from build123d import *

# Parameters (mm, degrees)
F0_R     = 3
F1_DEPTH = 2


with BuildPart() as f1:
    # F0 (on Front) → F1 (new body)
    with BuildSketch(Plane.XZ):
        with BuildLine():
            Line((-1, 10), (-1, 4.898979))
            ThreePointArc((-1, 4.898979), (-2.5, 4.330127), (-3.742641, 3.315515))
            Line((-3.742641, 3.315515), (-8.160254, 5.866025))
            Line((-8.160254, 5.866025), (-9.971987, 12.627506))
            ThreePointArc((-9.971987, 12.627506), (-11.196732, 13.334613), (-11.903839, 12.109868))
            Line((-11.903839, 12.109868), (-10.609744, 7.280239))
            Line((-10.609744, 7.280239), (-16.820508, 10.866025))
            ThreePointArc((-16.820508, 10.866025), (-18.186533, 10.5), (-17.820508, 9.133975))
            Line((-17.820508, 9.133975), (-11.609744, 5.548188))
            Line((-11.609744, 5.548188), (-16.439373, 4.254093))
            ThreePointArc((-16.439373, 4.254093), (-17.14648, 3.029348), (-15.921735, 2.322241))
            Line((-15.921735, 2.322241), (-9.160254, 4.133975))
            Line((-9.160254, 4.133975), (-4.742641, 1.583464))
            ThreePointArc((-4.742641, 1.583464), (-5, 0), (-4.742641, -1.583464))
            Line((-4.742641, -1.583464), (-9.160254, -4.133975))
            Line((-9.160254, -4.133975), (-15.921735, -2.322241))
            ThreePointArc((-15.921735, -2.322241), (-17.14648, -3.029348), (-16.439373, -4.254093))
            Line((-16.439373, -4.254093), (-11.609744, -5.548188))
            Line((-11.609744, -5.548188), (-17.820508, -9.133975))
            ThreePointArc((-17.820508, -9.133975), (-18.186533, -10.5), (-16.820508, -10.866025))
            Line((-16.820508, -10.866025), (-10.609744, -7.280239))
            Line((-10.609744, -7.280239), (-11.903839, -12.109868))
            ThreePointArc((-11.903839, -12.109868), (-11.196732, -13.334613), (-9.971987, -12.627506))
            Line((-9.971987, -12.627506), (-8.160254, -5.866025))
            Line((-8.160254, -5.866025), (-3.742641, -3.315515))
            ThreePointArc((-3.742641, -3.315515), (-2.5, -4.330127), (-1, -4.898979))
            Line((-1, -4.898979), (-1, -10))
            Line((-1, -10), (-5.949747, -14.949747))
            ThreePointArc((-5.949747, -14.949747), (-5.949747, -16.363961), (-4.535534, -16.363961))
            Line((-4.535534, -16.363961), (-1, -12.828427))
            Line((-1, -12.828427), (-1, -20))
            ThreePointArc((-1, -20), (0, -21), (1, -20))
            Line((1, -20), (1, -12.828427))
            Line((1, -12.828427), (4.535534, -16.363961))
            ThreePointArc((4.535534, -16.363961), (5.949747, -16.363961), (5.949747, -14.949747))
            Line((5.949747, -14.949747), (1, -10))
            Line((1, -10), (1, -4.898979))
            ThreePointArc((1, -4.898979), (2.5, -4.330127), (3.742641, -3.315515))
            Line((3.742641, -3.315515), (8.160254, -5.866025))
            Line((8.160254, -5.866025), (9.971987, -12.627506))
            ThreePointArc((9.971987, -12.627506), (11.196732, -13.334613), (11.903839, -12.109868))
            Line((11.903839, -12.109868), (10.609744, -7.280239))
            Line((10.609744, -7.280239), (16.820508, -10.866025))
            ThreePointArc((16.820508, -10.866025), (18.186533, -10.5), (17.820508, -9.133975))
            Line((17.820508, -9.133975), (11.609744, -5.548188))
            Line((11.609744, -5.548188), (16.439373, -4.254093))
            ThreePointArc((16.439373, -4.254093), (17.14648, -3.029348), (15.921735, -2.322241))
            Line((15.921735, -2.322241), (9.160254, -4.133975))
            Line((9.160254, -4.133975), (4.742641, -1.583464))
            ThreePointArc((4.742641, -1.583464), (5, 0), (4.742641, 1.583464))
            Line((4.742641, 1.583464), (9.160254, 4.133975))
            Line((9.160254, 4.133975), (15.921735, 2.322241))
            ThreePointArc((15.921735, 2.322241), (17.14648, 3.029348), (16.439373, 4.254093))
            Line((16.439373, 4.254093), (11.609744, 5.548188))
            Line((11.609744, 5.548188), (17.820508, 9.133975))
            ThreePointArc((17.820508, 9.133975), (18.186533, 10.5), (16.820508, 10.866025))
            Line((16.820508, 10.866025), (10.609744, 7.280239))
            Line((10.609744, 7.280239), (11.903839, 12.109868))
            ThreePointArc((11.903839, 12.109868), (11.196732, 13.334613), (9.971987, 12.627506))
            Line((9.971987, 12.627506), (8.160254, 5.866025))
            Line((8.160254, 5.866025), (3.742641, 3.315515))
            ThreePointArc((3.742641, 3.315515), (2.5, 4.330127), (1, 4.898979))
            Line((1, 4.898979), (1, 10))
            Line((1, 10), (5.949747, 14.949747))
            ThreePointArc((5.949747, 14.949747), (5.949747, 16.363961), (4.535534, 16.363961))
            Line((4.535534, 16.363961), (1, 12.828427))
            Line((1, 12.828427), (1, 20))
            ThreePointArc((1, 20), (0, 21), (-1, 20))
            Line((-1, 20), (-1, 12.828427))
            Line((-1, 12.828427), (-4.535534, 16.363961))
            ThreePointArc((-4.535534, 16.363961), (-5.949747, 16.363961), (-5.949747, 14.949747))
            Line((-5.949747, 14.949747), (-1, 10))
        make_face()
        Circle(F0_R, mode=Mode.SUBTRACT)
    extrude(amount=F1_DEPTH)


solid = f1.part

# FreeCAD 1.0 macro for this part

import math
import FreeCAD as App
import Part
import Sketcher
Q = App.Units.Quantity

doc = App.newDocument("Part")
body = doc.addObject("PartDesign::Body", "Body")

sketch1 = body.newObject("Sketcher::SketchObject", "Sketch")
sketch1.AttachmentSupport = (doc.getObject("XZ_Plane"), [""])
sketch1.MapMode = "FlatFace"
sketch1.addGeometry([
    Part.LineSegment(App.Vector(-1, 10, 0), App.Vector(-1, 4.898979, 0)),
    Part.ArcOfCircle(Part.Circle(App.Vector(-0.000002, 0.000002, 0), App.Vector(0, 0, 1), 4.999997), math.radians(101.536939), math.radians(138.463045)),
    Part.LineSegment(App.Vector(-3.742641, 3.315515, 0), App.Vector(-8.160254, 5.866025, 0)),
    Part.LineSegment(App.Vector(-8.160254, 5.866025, 0), App.Vector(-9.971987, 12.627506, 0)),
    Part.ArcOfCircle(Part.Circle(App.Vector(-10.937913, 12.368687, 0), App.Vector(0, 0, 1), 1), math.radians(14.999995), math.radians(194.999995)),
    Part.LineSegment(App.Vector(-11.903839, 12.109868, 0), App.Vector(-10.609744, 7.280239, 0)),
    Part.LineSegment(App.Vector(-10.609744, 7.280239, 0), App.Vector(-16.820508, 10.866025, 0)),
    Part.ArcOfCircle(Part.Circle(App.Vector(-17.320508, 10, 0), App.Vector(0, 0, 1), 1), math.radians(59.999988), math.radians(239.999988)),
    Part.LineSegment(App.Vector(-17.820508, 9.133975, 0), App.Vector(-11.609744, 5.548188, 0)),
    Part.LineSegment(App.Vector(-11.609744, 5.548188, 0), App.Vector(-16.439373, 4.254093, 0)),
    Part.ArcOfCircle(Part.Circle(App.Vector(-16.180554, 3.288167, 0), App.Vector(0, 0, 1), 1), math.radians(104.999995), math.radians(284.999995)),
    Part.LineSegment(App.Vector(-15.921735, 2.322241, 0), App.Vector(-9.160254, 4.133975, 0)),
    Part.LineSegment(App.Vector(-9.160254, 4.133975, 0), App.Vector(-4.742641, 1.583464, 0)),
    Part.ArcOfCircle(Part.Circle(App.Vector(0.000004, 0, 0), App.Vector(0, 0, 1), 5.000004), math.radians(161.536977), math.radians(198.463023)),
    Part.LineSegment(App.Vector(-4.742641, -1.583464, 0), App.Vector(-9.160254, -4.133975, 0)),
    Part.LineSegment(App.Vector(-9.160254, -4.133975, 0), App.Vector(-15.921735, -2.322241, 0)),
    Part.ArcOfCircle(Part.Circle(App.Vector(-16.180554, -3.288167, 0), App.Vector(0, 0, 1), 1), math.radians(75.000005), math.radians(255.000005)),
    Part.LineSegment(App.Vector(-16.439373, -4.254093, 0), App.Vector(-11.609744, -5.548188, 0)),
    Part.LineSegment(App.Vector(-11.609744, -5.548188, 0), App.Vector(-17.820508, -9.133975, 0)),
    Part.ArcOfCircle(Part.Circle(App.Vector(-17.320508, -10, 0), App.Vector(0, 0, 1), 1), math.radians(120.000012), math.radians(300.000012)),
    Part.LineSegment(App.Vector(-16.820508, -10.866025, 0), App.Vector(-10.609744, -7.280239, 0)),
    Part.LineSegment(App.Vector(-10.609744, -7.280239, 0), App.Vector(-11.903839, -12.109868, 0)),
    Part.ArcOfCircle(Part.Circle(App.Vector(-10.937913, -12.368687, 0), App.Vector(0, 0, 1), 1), math.radians(165.000005), math.radians(345.000005)),
    Part.LineSegment(App.Vector(-9.971987, -12.627506, 0), App.Vector(-8.160254, -5.866025, 0)),
    Part.LineSegment(App.Vector(-8.160254, -5.866025, 0), App.Vector(-3.742641, -3.315515, 0)),
    Part.ArcOfCircle(Part.Circle(App.Vector(-0.000002, -0.000002, 0), App.Vector(0, 0, 1), 4.999997), math.radians(-138.463045), math.radians(-101.536939)),
    Part.LineSegment(App.Vector(-1, -4.898979, 0), App.Vector(-1, -10, 0)),
    Part.LineSegment(App.Vector(-1, -10, 0), App.Vector(-5.949747, -14.949747, 0)),
    Part.ArcOfCircle(Part.Circle(App.Vector(-5.242641, -15.656854, 0), App.Vector(0, 0, 1), 1), math.radians(134.99998), math.radians(314.99998)),
    Part.LineSegment(App.Vector(-4.535534, -16.363961, 0), App.Vector(-1, -12.828427, 0)),
    Part.LineSegment(App.Vector(-1, -12.828427, 0), App.Vector(-1, -20, 0)),
    Part.ArcOfCircle(Part.Circle(App.Vector(0, -20, 0), App.Vector(0, 0, 1), 1), math.radians(180), math.radians(360)),
    Part.LineSegment(App.Vector(1, -20, 0), App.Vector(1, -12.828427, 0)),
    Part.LineSegment(App.Vector(1, -12.828427, 0), App.Vector(4.535534, -16.363961, 0)),
    Part.ArcOfCircle(Part.Circle(App.Vector(5.242641, -15.656854, 0), App.Vector(0, 0, 1), 1), math.radians(-134.99998), math.radians(45.00002)),
    Part.LineSegment(App.Vector(5.949747, -14.949747, 0), App.Vector(1, -10, 0)),
    Part.LineSegment(App.Vector(1, -10, 0), App.Vector(1, -4.898979, 0)),
    Part.ArcOfCircle(Part.Circle(App.Vector(0.000002, -0.000002, 0), App.Vector(0, 0, 1), 4.999997), math.radians(-78.463061), math.radians(-41.536955)),
    Part.LineSegment(App.Vector(3.742641, -3.315515, 0), App.Vector(8.160254, -5.866025, 0)),
    Part.LineSegment(App.Vector(8.160254, -5.866025, 0), App.Vector(9.971987, -12.627506, 0)),
    Part.ArcOfCircle(Part.Circle(App.Vector(10.937913, -12.368687, 0), App.Vector(0, 0, 1), 1), math.radians(-165.000005), math.radians(14.999995)),
    Part.LineSegment(App.Vector(11.903839, -12.109868, 0), App.Vector(10.609744, -7.280239, 0)),
    Part.LineSegment(App.Vector(10.609744, -7.280239, 0), App.Vector(16.820508, -10.866025, 0)),
    Part.ArcOfCircle(Part.Circle(App.Vector(17.320508, -10, 0), App.Vector(0, 0, 1), 1), math.radians(-120.000012), math.radians(59.999988)),
    Part.LineSegment(App.Vector(17.820508, -9.133975, 0), App.Vector(11.609744, -5.548188, 0)),
    Part.LineSegment(App.Vector(11.609744, -5.548188, 0), App.Vector(16.439373, -4.254093, 0)),
    Part.ArcOfCircle(Part.Circle(App.Vector(16.180554, -3.288167, 0), App.Vector(0, 0, 1), 1), math.radians(-75.000005), math.radians(104.999995)),
    Part.LineSegment(App.Vector(15.921735, -2.322241, 0), App.Vector(9.160254, -4.133975, 0)),
    Part.LineSegment(App.Vector(9.160254, -4.133975, 0), App.Vector(4.742641, -1.583464, 0)),
    Part.ArcOfCircle(Part.Circle(App.Vector(-0.000004, 0, 0), App.Vector(0, 0, 1), 5.000004), math.radians(-18.463023), math.radians(18.463023)),
    Part.LineSegment(App.Vector(4.742641, 1.583464, 0), App.Vector(9.160254, 4.133975, 0)),
    Part.LineSegment(App.Vector(9.160254, 4.133975, 0), App.Vector(15.921735, 2.322241, 0)),
    Part.ArcOfCircle(Part.Circle(App.Vector(16.180554, 3.288167, 0), App.Vector(0, 0, 1), 1), math.radians(-104.999995), math.radians(75.000005)),
    Part.LineSegment(App.Vector(16.439373, 4.254093, 0), App.Vector(11.609744, 5.548188, 0)),
    Part.LineSegment(App.Vector(11.609744, 5.548188, 0), App.Vector(17.820508, 9.133975, 0)),
    Part.ArcOfCircle(Part.Circle(App.Vector(17.320508, 10, 0), App.Vector(0, 0, 1), 1), math.radians(-59.999988), math.radians(120.000012)),
    Part.LineSegment(App.Vector(16.820508, 10.866025, 0), App.Vector(10.609744, 7.280239, 0)),
    Part.LineSegment(App.Vector(10.609744, 7.280239, 0), App.Vector(11.903839, 12.109868, 0)),
    Part.ArcOfCircle(Part.Circle(App.Vector(10.937913, 12.368687, 0), App.Vector(0, 0, 1), 1), math.radians(-14.999995), math.radians(165.000005)),
    Part.LineSegment(App.Vector(9.971987, 12.627506, 0), App.Vector(8.160254, 5.866025, 0)),
    Part.LineSegment(App.Vector(8.160254, 5.866025, 0), App.Vector(3.742641, 3.315515, 0)),
    Part.ArcOfCircle(Part.Circle(App.Vector(0.000002, 0.000002, 0), App.Vector(0, 0, 1), 4.999997), math.radians(41.536955), math.radians(78.463061)),
    Part.LineSegment(App.Vector(1, 4.898979, 0), App.Vector(1, 10, 0)),
    Part.LineSegment(App.Vector(1, 10, 0), App.Vector(5.949747, 14.949747, 0)),
    Part.ArcOfCircle(Part.Circle(App.Vector(5.242641, 15.656854, 0), App.Vector(0, 0, 1), 1), math.radians(-45.00002), math.radians(134.99998)),
    Part.LineSegment(App.Vector(4.535534, 16.363961, 0), App.Vector(1, 12.828427, 0)),
    Part.LineSegment(App.Vector(1, 12.828427, 0), App.Vector(1, 20, 0)),
    Part.ArcOfCircle(Part.Circle(App.Vector(0, 20, 0), App.Vector(0, 0, 1), 1), math.radians(0), math.radians(180)),
    Part.LineSegment(App.Vector(-1, 20, 0), App.Vector(-1, 12.828427, 0)),
    Part.LineSegment(App.Vector(-1, 12.828427, 0), App.Vector(-4.535534, 16.363961, 0)),
    Part.ArcOfCircle(Part.Circle(App.Vector(-5.242641, 15.656854, 0), App.Vector(0, 0, 1), 1), math.radians(45.00002), math.radians(225.00002)),
    Part.LineSegment(App.Vector(-5.949747, 14.949747, 0), App.Vector(-1, 10, 0)),
    Part.Circle(App.Vector(0, 0, 0), App.Vector(0, 0, 1), 3),
], False)
sketch1.addConstraint([
    Sketcher.Constraint("Coincident", 0, 2, 1, 1),
    Sketcher.Constraint("Coincident", 1, 2, 2, 1),
    Sketcher.Constraint("Coincident", 2, 2, 3, 1),
    Sketcher.Constraint("Coincident", 3, 2, 4, 1),
    Sketcher.Constraint("Coincident", 4, 2, 5, 1),
    Sketcher.Constraint("Coincident", 5, 2, 6, 1),
    Sketcher.Constraint("Coincident", 6, 2, 7, 1),
    Sketcher.Constraint("Coincident", 7, 2, 8, 1),
    Sketcher.Constraint("Coincident", 8, 2, 9, 1),
    Sketcher.Constraint("Coincident", 9, 2, 10, 1),
    Sketcher.Constraint("Coincident", 10, 2, 11, 1),
    Sketcher.Constraint("Coincident", 11, 2, 12, 1),
    Sketcher.Constraint("Coincident", 12, 2, 13, 1),
    Sketcher.Constraint("Coincident", 13, 2, 14, 1),
    Sketcher.Constraint("Coincident", 14, 2, 15, 1),
    Sketcher.Constraint("Coincident", 15, 2, 16, 1),
    Sketcher.Constraint("Coincident", 16, 2, 17, 1),
    Sketcher.Constraint("Coincident", 17, 2, 18, 1),
    Sketcher.Constraint("Coincident", 18, 2, 19, 1),
    Sketcher.Constraint("Coincident", 19, 2, 20, 1),
    Sketcher.Constraint("Coincident", 20, 2, 21, 1),
    Sketcher.Constraint("Coincident", 21, 2, 22, 1),
    Sketcher.Constraint("Coincident", 22, 2, 23, 1),
    Sketcher.Constraint("Coincident", 23, 2, 24, 1),
    Sketcher.Constraint("Coincident", 24, 2, 25, 1),
    Sketcher.Constraint("Coincident", 25, 2, 26, 1),
    Sketcher.Constraint("Coincident", 26, 2, 27, 1),
    Sketcher.Constraint("Coincident", 27, 2, 28, 1),
    Sketcher.Constraint("Coincident", 28, 2, 29, 1),
    Sketcher.Constraint("Coincident", 29, 2, 30, 1),
    Sketcher.Constraint("Coincident", 30, 2, 31, 1),
    Sketcher.Constraint("Coincident", 31, 2, 32, 1),
    Sketcher.Constraint("Coincident", 32, 2, 33, 1),
    Sketcher.Constraint("Coincident", 33, 2, 34, 1),
    Sketcher.Constraint("Coincident", 34, 2, 35, 1),
    Sketcher.Constraint("Coincident", 35, 2, 36, 1),
    Sketcher.Constraint("Coincident", 36, 2, 37, 1),
    Sketcher.Constraint("Coincident", 37, 2, 38, 1),
    Sketcher.Constraint("Coincident", 38, 2, 39, 1),
    Sketcher.Constraint("Coincident", 39, 2, 40, 1),
    Sketcher.Constraint("Coincident", 40, 2, 41, 1),
    Sketcher.Constraint("Coincident", 41, 2, 42, 1),
    Sketcher.Constraint("Coincident", 42, 2, 43, 1),
    Sketcher.Constraint("Coincident", 43, 2, 44, 1),
    Sketcher.Constraint("Coincident", 44, 2, 45, 1),
    Sketcher.Constraint("Coincident", 45, 2, 46, 1),
    Sketcher.Constraint("Coincident", 46, 2, 47, 1),
    Sketcher.Constraint("Coincident", 47, 2, 48, 1),
    Sketcher.Constraint("Coincident", 48, 2, 49, 1),
    Sketcher.Constraint("Coincident", 49, 2, 50, 1),
    Sketcher.Constraint("Coincident", 50, 2, 51, 1),
    Sketcher.Constraint("Coincident", 51, 2, 52, 1),
    Sketcher.Constraint("Coincident", 52, 2, 53, 1),
    Sketcher.Constraint("Coincident", 53, 2, 54, 1),
    Sketcher.Constraint("Coincident", 54, 2, 55, 1),
    Sketcher.Constraint("Coincident", 55, 2, 56, 1),
    Sketcher.Constraint("Coincident", 56, 2, 57, 1),
    Sketcher.Constraint("Coincident", 57, 2, 58, 1),
    Sketcher.Constraint("Coincident", 58, 2, 59, 1),
    Sketcher.Constraint("Coincident", 59, 2, 60, 1),
    Sketcher.Constraint("Coincident", 60, 2, 61, 1),
    Sketcher.Constraint("Coincident", 61, 2, 62, 1),
    Sketcher.Constraint("Coincident", 62, 2, 63, 1),
    Sketcher.Constraint("Coincident", 63, 2, 64, 1),
    Sketcher.Constraint("Coincident", 64, 2, 65, 1),
    Sketcher.Constraint("Coincident", 65, 2, 66, 1),
    Sketcher.Constraint("Coincident", 66, 2, 67, 1),
    Sketcher.Constraint("Coincident", 67, 2, 68, 1),
    Sketcher.Constraint("Coincident", 68, 2, 69, 1),
    Sketcher.Constraint("Coincident", 69, 2, 70, 1),
    Sketcher.Constraint("Coincident", 70, 2, 71, 1),
    Sketcher.Constraint("Coincident", 71, 2, 0, 1),
    Sketcher.Constraint("Vertical", 0),
    Sketcher.Constraint("Vertical", 26),
    Sketcher.Constraint("Vertical", 30),
    Sketcher.Constraint("Vertical", 32),
    Sketcher.Constraint("Vertical", 36),
    Sketcher.Constraint("Vertical", 62),
    Sketcher.Constraint("Vertical", 66),
    Sketcher.Constraint("Vertical", 68),
    Sketcher.Constraint("Coincident", 1, 3, -1, 1),
    Sketcher.Constraint("Coincident", 13, 3, -1, 1),
    Sketcher.Constraint("Coincident", 25, 3, -1, 1),
    Sketcher.Constraint("Coincident", 37, 3, -1, 1),
    Sketcher.Constraint("Coincident", 49, 3, -1, 1),
    Sketcher.Constraint("Coincident", 61, 3, -1, 1),
    Sketcher.Constraint("Coincident", 72, 3, -1, 1),
    Sketcher.Constraint("PointOnObject", 31, 3, -2),
    Sketcher.Constraint("PointOnObject", 67, 3, -2),
    Sketcher.Constraint("Diameter", 72, Q("6 mm")),
    Sketcher.Constraint("Radius", 4, Q("1 mm")),
    Sketcher.Constraint("Radius", 7, Q("1 mm")),
    Sketcher.Constraint("Radius", 10, Q("1 mm")),
    Sketcher.Constraint("Radius", 16, Q("1 mm")),
    Sketcher.Constraint("Radius", 19, Q("1 mm")),
    Sketcher.Constraint("Radius", 22, Q("1 mm")),
    Sketcher.Constraint("Radius", 28, Q("1 mm")),
    Sketcher.Constraint("Radius", 31, Q("1 mm")),
    Sketcher.Constraint("Radius", 34, Q("1 mm")),
    Sketcher.Constraint("Radius", 40, Q("1 mm")),
    Sketcher.Constraint("Radius", 43, Q("1 mm")),
    Sketcher.Constraint("Radius", 46, Q("1 mm")),
    Sketcher.Constraint("Radius", 52, Q("1 mm")),
    Sketcher.Constraint("Radius", 55, Q("1 mm")),
    Sketcher.Constraint("Radius", 58, Q("1 mm")),
    Sketcher.Constraint("Radius", 64, Q("1 mm")),
    Sketcher.Constraint("Radius", 67, Q("1 mm")),
    Sketcher.Constraint("Radius", 70, Q("1 mm")),
    Sketcher.Constraint("Distance", 3, Q("7 mm")),
    Sketcher.Constraint("Distance", 5, Q("5 mm")),
    Sketcher.Constraint("Distance", 9, Q("5 mm")),
    Sketcher.Constraint("Distance", 11, Q("7 mm")),
    Sketcher.Constraint("Distance", 15, Q("7 mm")),
    Sketcher.Constraint("Distance", 17, Q("5 mm")),
    Sketcher.Constraint("Distance", 21, Q("5 mm")),
    Sketcher.Constraint("Distance", 23, Q("7 mm")),
    Sketcher.Constraint("Distance", 27, Q("6.999999 mm")),
    Sketcher.Constraint("Distance", 29, Q("5 mm")),
    Sketcher.Constraint("Distance", 33, Q("5 mm")),
    Sketcher.Constraint("Distance", 35, Q("6.999999 mm")),
    Sketcher.Constraint("Distance", 39, Q("7 mm")),
    Sketcher.Constraint("Distance", 41, Q("5 mm")),
    Sketcher.Constraint("Distance", 45, Q("5 mm")),
    Sketcher.Constraint("Distance", 47, Q("7 mm")),
    Sketcher.Constraint("Distance", 51, Q("7 mm")),
    Sketcher.Constraint("Distance", 53, Q("5 mm")),
    Sketcher.Constraint("Distance", 57, Q("5 mm")),
    Sketcher.Constraint("Distance", 59, Q("7 mm")),
    Sketcher.Constraint("Distance", 63, Q("6.999999 mm")),
    Sketcher.Constraint("Distance", 65, Q("5 mm")),
    Sketcher.Constraint("Distance", 69, Q("5 mm")),
    Sketcher.Constraint("Distance", 71, Q("6.999999 mm")),
    Sketcher.Constraint("DistanceY", -1, 1, 7, 3, Q("10 mm")),
    Sketcher.Constraint("DistanceY", 19, 3, -1, 1, Q("10 mm")),
    Sketcher.Constraint("DistanceY", 31, 3, -1, 1, Q("20 mm")),
    Sketcher.Constraint("DistanceY", 43, 3, -1, 1, Q("10 mm")),
    Sketcher.Constraint("DistanceY", -1, 1, 55, 3, Q("10 mm")),
    Sketcher.Constraint("DistanceY", -1, 1, 67, 3, Q("20 mm")),
    Sketcher.Constraint("DistanceX", 0, 2, -1, 1, Q("1 mm")),
    Sketcher.Constraint("DistanceX", 25, 2, -1, 1, Q("1 mm")),
    Sketcher.Constraint("DistanceY", 26, 2, -1, 1, Q("10 mm")),
    Sketcher.Constraint("DistanceY", 30, 2, -1, 1, Q("20 mm")),
    Sketcher.Constraint("DistanceY", 31, 2, -1, 1, Q("20 mm")),
    Sketcher.Constraint("DistanceX", -1, 1, 35, 2, Q("1 mm")),
    Sketcher.Constraint("DistanceY", 35, 2, -1, 1, Q("10 mm")),
    Sketcher.Constraint("DistanceX", -1, 1, 61, 2, Q("1 mm")),
    Sketcher.Constraint("DistanceY", -1, 1, 62, 2, Q("10 mm")),
    Sketcher.Constraint("DistanceY", -1, 1, 66, 2, Q("20 mm")),
    Sketcher.Constraint("DistanceY", -1, 1, 67, 2, Q("20 mm")),
    Sketcher.Constraint("DistanceY", -1, 1, 71, 2, Q("10 mm")),
    Sketcher.Constraint("Radius", 1, Q("4.999997 mm")),
    Sketcher.Constraint("Radius", 13, Q("5.000004 mm")),
    Sketcher.Constraint("Radius", 25, Q("4.999997 mm")),
    Sketcher.Constraint("Radius", 37, Q("4.999997 mm")),
    Sketcher.Constraint("Radius", 49, Q("5.000004 mm")),
    Sketcher.Constraint("Radius", 61, Q("4.999997 mm")),
    Sketcher.Constraint("Distance", 2, Q("5.10102 mm")),
    Sketcher.Constraint("Distance", 12, Q("5.101021 mm")),
    Sketcher.Constraint("Distance", 14, Q("5.101021 mm")),
    Sketcher.Constraint("Distance", 24, Q("5.10102 mm")),
    Sketcher.Constraint("Distance", 38, Q("5.10102 mm")),
    Sketcher.Constraint("Distance", 48, Q("5.101021 mm")),
    Sketcher.Constraint("Distance", 50, Q("5.101021 mm")),
    Sketcher.Constraint("Distance", 60, Q("5.10102 mm")),
    Sketcher.Constraint("DistanceY", 30, 2, 30, 1, Q("7.171573 mm")),
    Sketcher.Constraint("DistanceY", 32, 1, 32, 2, Q("7.171573 mm")),
    Sketcher.Constraint("DistanceY", 66, 1, 66, 2, Q("7.171573 mm")),
    Sketcher.Constraint("DistanceY", 68, 2, 68, 1, Q("7.171573 mm")),
    Sketcher.Constraint("DistanceX", 7, 3, -1, 1, Q("17.320508 mm")),
    Sketcher.Constraint("DistanceX", 19, 3, -1, 1, Q("17.320508 mm")),
    Sketcher.Constraint("DistanceX", 28, 3, -1, 1, Q("5.242641 mm")),
    Sketcher.Constraint("DistanceX", -1, 1, 34, 3, Q("5.242641 mm")),
    Sketcher.Constraint("DistanceX", -1, 1, 43, 3, Q("17.320508 mm")),
    Sketcher.Constraint("DistanceX", -1, 1, 55, 3, Q("17.320508 mm")),
    Sketcher.Constraint("DistanceX", -1, 1, 64, 3, Q("5.242641 mm")),
    Sketcher.Constraint("DistanceX", 70, 3, -1, 1, Q("5.242641 mm")),
    Sketcher.Constraint("DistanceX", 1, 2, -1, 1, Q("3.742641 mm")),
    Sketcher.Constraint("DistanceX", 4, 2, -1, 1, Q("11.903839 mm")),
    Sketcher.Constraint("DistanceY", -1, 1, 4, 2, Q("12.109868 mm")),
    Sketcher.Constraint("DistanceY", -1, 1, 5, 2, Q("7.280239 mm")),
    Sketcher.Constraint("DistanceX", 6, 2, -1, 1, Q("16.820508 mm")),
    Sketcher.Constraint("DistanceY", -1, 1, 10, 2, Q("2.322241 mm")),
    Sketcher.Constraint("DistanceX", 12, 2, -1, 1, Q("4.742641 mm")),
    Sketcher.Constraint("DistanceX", 13, 2, -1, 1, Q("4.742641 mm")),
    Sketcher.Constraint("DistanceY", 15, 2, -1, 1, Q("2.322241 mm")),
    Sketcher.Constraint("DistanceX", 18, 2, -1, 1, Q("17.820508 mm")),
    Sketcher.Constraint("DistanceX", 19, 2, -1, 1, Q("16.820508 mm")),
    Sketcher.Constraint("DistanceY", 20, 2, -1, 1, Q("7.280239 mm")),
    Sketcher.Constraint("DistanceX", 21, 2, -1, 1, Q("11.903839 mm")),
    Sketcher.Constraint("DistanceX", 24, 2, -1, 1, Q("3.742641 mm")),
    Sketcher.Constraint("DistanceY", 28, 2, -1, 1, Q("16.363961 mm")),
    Sketcher.Constraint("DistanceY", 33, 2, -1, 1, Q("16.363961 mm")),
    Sketcher.Constraint("DistanceX", -1, 1, 37, 2, Q("3.742641 mm")),
    Sketcher.Constraint("DistanceX", -1, 1, 40, 2, Q("11.903839 mm")),
    Sketcher.Constraint("DistanceY", 40, 2, -1, 1, Q("12.109868 mm")),
    Sketcher.Constraint("DistanceY", 41, 2, -1, 1, Q("7.280239 mm")),
    Sketcher.Constraint("DistanceX", -1, 1, 42, 2, Q("16.820508 mm")),
    Sketcher.Constraint("DistanceY", 46, 2, -1, 1, Q("2.322241 mm")),
    Sketcher.Constraint("DistanceX", -1, 1, 48, 2, Q("4.742641 mm")),
    Sketcher.Constraint("DistanceX", -1, 1, 49, 2, Q("4.742641 mm")),
    Sketcher.Constraint("DistanceY", -1, 1, 51, 2, Q("2.322241 mm")),
    Sketcher.Constraint("DistanceX", -1, 1, 54, 2, Q("17.820508 mm")),
    Sketcher.Constraint("DistanceX", -1, 1, 55, 2, Q("16.820508 mm")),
    Sketcher.Constraint("DistanceY", -1, 1, 56, 2, Q("7.280239 mm")),
    Sketcher.Constraint("DistanceX", -1, 1, 57, 2, Q("11.903839 mm")),
    Sketcher.Constraint("DistanceX", -1, 1, 60, 2, Q("3.742641 mm")),
    Sketcher.Constraint("DistanceY", -1, 1, 64, 2, Q("16.363961 mm")),
    Sketcher.Constraint("DistanceY", -1, 1, 69, 2, Q("16.363961 mm")),
    Sketcher.Constraint("Distance", 8, Q("7.171573 mm")),
    Sketcher.Constraint("Distance", 18, Q("7.171573 mm")),
    Sketcher.Constraint("Distance", 20, Q("7.171572 mm")),
    Sketcher.Constraint("Distance", 44, Q("7.171573 mm")),
    Sketcher.Constraint("Distance", 54, Q("7.171573 mm")),
    Sketcher.Constraint("Distance", 56, Q("7.171572 mm")),
    Sketcher.Constraint("DistanceX", 4, 3, -1, 1, Q("10.937913 mm")),
    Sketcher.Constraint("DistanceX", 10, 3, -1, 1, Q("16.180554 mm")),
    Sketcher.Constraint("DistanceY", -1, 1, 10, 3, Q("3.288167 mm")),
    Sketcher.Constraint("DistanceX", 16, 3, -1, 1, Q("16.180554 mm")),
    Sketcher.Constraint("DistanceY", 16, 3, -1, 1, Q("3.288167 mm")),
    Sketcher.Constraint("DistanceX", 22, 3, -1, 1, Q("10.937913 mm")),
    Sketcher.Constraint("DistanceX", -1, 1, 40, 3, Q("10.937913 mm")),
    Sketcher.Constraint("DistanceX", -1, 1, 46, 3, Q("16.180554 mm")),
    Sketcher.Constraint("DistanceY", 46, 3, -1, 1, Q("3.288167 mm")),
    Sketcher.Constraint("DistanceX", -1, 1, 52, 3, Q("16.180554 mm")),
    Sketcher.Constraint("DistanceY", -1, 1, 52, 3, Q("3.288167 mm")),
    Sketcher.Constraint("DistanceX", -1, 1, 58, 3, Q("10.937913 mm")),
    Sketcher.Constraint("DistanceX", 2, 2, -1, 1, Q("8.160254 mm")),
    Sketcher.Constraint("DistanceX", 7, 2, -1, 1, Q("17.820508 mm")),
    Sketcher.Constraint("DistanceX", 8, 2, -1, 1, Q("11.609744 mm")),
    Sketcher.Constraint("DistanceX", 16, 2, -1, 1, Q("16.439373 mm")),
    Sketcher.Constraint("DistanceX", 22, 2, -1, 1, Q("9.971987 mm")),
    Sketcher.Constraint("DistanceX", -1, 1, 38, 2, Q("8.160254 mm")),
    Sketcher.Constraint("DistanceX", -1, 1, 43, 2, Q("17.820508 mm")),
    Sketcher.Constraint("DistanceX", -1, 1, 44, 2, Q("11.609744 mm")),
    Sketcher.Constraint("DistanceX", -1, 1, 52, 2, Q("16.439373 mm")),
    Sketcher.Constraint("DistanceX", -1, 1, 58, 2, Q("9.971987 mm")),
])
pad1 = body.newObject("PartDesign::Pad", "Pad")
pad1.Profile = sketch1
pad1.Length = 2

doc.recompute()
